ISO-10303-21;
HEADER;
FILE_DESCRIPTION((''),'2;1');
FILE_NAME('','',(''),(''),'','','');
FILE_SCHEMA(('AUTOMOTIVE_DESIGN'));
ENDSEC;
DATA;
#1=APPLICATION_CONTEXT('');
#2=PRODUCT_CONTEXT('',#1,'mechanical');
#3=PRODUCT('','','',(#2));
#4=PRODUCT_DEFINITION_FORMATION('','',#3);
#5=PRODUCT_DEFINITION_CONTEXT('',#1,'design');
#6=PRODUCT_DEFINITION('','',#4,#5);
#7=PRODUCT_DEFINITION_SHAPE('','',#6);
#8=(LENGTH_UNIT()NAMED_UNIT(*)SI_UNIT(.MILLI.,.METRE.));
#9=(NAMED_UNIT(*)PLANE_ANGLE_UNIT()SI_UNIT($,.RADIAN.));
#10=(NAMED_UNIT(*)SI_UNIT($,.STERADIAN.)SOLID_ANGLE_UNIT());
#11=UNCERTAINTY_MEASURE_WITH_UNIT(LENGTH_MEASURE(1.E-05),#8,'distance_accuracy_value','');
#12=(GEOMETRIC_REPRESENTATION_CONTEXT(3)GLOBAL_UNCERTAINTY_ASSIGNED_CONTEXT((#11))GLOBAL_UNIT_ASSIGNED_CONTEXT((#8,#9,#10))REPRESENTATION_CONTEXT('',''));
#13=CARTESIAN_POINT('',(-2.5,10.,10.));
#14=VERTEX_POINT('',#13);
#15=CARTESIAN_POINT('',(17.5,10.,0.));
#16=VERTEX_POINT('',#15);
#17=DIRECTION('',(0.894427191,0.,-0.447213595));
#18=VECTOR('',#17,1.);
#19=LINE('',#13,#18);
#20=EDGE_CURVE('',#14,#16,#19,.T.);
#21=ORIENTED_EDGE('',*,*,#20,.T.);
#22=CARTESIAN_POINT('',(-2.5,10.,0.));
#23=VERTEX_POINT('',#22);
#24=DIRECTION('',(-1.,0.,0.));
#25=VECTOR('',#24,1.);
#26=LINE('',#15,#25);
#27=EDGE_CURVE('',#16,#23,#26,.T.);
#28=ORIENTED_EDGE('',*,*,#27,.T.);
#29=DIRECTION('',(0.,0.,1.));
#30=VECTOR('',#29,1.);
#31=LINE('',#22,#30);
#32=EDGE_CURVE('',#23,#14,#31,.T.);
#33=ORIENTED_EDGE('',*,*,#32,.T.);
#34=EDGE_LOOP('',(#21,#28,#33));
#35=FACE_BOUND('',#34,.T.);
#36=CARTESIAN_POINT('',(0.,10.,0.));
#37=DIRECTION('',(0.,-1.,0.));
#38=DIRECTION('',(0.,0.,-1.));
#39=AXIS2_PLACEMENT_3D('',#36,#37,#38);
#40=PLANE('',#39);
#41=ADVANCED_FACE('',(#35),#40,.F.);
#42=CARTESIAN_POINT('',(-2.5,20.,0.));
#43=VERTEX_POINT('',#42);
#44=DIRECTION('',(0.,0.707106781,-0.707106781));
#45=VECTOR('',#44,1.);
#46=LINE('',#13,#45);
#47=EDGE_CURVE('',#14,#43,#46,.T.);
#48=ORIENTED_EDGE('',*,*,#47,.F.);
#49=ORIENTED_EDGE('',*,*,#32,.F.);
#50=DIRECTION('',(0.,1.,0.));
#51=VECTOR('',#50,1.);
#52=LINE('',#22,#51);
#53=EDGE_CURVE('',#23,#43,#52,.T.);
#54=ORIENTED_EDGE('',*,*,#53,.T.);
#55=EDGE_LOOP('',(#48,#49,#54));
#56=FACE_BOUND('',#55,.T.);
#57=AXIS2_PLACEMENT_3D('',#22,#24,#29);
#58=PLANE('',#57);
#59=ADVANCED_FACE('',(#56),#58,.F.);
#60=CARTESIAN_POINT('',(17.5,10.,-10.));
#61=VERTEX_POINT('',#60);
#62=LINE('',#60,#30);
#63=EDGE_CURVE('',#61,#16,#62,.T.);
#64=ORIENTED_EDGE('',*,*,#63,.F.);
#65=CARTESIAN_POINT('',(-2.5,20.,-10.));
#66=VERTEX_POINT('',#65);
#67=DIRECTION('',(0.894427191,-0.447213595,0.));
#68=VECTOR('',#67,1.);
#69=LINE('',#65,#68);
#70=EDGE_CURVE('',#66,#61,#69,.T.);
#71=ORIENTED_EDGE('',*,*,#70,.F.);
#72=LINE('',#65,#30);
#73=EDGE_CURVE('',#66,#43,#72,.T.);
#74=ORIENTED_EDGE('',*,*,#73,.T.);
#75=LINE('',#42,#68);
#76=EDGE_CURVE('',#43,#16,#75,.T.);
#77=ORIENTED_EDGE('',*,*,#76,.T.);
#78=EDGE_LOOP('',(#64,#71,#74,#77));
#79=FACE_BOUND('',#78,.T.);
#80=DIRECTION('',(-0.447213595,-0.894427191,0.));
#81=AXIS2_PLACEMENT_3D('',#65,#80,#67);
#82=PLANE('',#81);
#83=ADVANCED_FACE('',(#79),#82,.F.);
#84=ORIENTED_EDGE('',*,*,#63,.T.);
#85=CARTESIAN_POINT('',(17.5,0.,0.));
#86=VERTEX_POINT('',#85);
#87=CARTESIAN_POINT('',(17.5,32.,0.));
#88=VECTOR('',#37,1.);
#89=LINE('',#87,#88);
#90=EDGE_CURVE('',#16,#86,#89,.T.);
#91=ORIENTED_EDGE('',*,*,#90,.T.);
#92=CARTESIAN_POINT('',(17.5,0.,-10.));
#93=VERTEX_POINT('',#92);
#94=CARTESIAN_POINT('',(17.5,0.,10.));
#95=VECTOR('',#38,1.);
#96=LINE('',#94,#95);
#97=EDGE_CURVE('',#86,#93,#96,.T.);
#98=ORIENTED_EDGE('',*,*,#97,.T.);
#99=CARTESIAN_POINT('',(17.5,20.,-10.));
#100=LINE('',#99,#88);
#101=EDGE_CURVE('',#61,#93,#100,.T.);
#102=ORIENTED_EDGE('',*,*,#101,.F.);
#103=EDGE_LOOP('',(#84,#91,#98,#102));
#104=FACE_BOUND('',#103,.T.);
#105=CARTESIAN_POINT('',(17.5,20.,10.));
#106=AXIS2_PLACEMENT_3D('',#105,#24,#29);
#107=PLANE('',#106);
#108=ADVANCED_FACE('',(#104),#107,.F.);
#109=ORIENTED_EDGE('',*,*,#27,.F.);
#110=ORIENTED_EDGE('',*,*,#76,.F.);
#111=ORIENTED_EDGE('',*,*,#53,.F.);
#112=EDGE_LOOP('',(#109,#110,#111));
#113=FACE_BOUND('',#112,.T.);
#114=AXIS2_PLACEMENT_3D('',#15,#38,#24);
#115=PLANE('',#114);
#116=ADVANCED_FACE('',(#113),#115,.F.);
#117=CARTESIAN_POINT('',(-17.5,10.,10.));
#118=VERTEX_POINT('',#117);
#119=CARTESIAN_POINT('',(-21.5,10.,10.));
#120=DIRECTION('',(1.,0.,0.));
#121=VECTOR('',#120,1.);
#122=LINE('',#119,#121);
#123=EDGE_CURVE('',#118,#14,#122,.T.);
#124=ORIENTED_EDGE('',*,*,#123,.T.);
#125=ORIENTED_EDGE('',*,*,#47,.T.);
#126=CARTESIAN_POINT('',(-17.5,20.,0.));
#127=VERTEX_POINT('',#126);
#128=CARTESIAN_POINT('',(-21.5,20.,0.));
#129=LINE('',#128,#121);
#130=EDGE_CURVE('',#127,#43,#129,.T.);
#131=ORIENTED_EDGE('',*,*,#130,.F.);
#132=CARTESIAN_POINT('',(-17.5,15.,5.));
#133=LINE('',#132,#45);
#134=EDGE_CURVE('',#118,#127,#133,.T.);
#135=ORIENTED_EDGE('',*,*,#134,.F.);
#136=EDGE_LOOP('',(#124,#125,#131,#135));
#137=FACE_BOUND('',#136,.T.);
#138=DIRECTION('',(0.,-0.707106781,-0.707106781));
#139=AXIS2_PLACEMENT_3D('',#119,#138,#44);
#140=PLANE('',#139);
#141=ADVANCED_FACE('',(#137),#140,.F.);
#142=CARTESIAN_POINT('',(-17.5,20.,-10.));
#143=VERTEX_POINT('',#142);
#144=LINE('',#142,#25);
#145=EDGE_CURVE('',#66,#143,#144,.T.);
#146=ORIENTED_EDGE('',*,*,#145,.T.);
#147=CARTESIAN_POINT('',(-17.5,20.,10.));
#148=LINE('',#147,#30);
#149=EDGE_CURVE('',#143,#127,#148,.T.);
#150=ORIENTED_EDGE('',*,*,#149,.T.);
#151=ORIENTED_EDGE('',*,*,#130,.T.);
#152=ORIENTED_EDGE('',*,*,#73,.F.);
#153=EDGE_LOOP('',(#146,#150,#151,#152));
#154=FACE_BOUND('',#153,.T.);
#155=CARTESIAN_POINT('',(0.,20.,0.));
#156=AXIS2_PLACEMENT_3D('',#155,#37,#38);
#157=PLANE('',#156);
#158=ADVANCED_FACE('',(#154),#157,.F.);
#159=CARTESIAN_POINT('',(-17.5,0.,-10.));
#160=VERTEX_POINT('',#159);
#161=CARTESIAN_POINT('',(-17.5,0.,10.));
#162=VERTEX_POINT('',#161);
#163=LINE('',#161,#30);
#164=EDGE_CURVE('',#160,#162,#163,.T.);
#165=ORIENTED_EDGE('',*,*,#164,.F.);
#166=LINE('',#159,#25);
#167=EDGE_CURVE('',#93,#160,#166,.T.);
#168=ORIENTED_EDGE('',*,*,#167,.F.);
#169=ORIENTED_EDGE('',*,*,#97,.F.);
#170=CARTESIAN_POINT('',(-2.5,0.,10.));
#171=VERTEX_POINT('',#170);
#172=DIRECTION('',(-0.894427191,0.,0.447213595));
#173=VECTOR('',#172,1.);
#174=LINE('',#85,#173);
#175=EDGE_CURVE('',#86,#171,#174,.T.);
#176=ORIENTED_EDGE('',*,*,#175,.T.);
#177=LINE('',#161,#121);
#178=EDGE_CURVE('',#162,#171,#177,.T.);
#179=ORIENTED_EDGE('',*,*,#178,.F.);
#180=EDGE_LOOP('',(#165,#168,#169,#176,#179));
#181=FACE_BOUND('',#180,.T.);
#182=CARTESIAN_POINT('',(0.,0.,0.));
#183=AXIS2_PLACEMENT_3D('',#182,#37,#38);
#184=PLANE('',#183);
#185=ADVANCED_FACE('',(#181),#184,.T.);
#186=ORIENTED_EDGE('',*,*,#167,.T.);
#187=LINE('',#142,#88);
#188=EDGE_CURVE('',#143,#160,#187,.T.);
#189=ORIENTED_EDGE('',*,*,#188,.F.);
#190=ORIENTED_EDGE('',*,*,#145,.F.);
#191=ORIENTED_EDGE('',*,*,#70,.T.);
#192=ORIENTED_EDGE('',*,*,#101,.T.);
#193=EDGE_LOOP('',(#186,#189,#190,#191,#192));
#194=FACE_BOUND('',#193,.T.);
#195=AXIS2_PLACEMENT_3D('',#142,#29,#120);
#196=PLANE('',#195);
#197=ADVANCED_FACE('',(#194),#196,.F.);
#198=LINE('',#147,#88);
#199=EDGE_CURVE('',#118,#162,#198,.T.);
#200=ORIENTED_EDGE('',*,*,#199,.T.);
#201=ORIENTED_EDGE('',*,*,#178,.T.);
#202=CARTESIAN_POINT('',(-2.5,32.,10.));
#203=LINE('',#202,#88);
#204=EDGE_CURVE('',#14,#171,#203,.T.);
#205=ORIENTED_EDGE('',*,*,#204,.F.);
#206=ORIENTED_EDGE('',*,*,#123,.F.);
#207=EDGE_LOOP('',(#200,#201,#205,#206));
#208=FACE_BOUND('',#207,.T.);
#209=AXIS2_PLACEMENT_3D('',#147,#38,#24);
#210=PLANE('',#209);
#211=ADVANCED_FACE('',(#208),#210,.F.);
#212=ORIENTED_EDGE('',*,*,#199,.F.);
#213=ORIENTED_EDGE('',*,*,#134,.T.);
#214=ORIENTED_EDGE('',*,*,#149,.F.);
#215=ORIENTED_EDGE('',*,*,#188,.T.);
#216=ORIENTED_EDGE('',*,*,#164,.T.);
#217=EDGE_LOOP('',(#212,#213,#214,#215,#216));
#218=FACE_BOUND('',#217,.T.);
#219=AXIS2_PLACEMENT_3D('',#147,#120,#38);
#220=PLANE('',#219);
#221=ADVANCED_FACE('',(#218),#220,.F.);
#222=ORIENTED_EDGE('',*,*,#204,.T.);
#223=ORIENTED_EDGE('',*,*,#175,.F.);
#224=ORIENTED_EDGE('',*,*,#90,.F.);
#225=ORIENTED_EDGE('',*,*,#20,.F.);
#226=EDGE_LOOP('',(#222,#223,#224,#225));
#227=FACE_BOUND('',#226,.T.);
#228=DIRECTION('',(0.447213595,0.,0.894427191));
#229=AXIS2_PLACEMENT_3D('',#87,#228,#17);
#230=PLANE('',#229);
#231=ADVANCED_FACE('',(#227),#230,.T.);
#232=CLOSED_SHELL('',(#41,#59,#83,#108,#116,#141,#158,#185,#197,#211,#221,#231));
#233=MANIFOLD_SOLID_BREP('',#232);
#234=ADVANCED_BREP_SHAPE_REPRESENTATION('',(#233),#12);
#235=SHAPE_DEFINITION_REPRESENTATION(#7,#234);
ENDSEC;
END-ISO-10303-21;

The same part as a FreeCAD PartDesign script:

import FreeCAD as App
import Part
import Sketcher
Q = App.Units.Quantity


def add_polygon(sketch, points):
    """Adds a closed chain of lines whose ends are joined by coincident constraints."""
    first, n = sketch.GeometryCount, len(points)
    for a, b in zip(points, points[1:] + points[:1]):
        sketch.addGeometry(Part.LineSegment(App.Vector(*a, 0), App.Vector(*b, 0)), False)
    for i in range(n):
        sketch.addConstraint(Sketcher.Constraint("Coincident", first + i, 2, first + (i + 1) % n, 1))

doc = App.newDocument("Part")
body = doc.addObject("PartDesign::Body", "Body")

sketch1 = body.newObject("Sketcher::SketchObject", "Sketch")
sketch1.AttachmentSupport = (doc.getObject("XZ_Plane"), [""])
sketch1.MapMode = "FlatFace"
add_polygon(sketch1, [(-18, -10), (-18, 10), (18, 10), (18, -10)])
sketch1.addConstraint(Sketcher.Constraint("Vertical", 0))
sketch1.addConstraint(Sketcher.Constraint("Horizontal", 1))
sketch1.addConstraint(Sketcher.Constraint("Vertical", 2))
sketch1.addConstraint(Sketcher.Constraint("Horizontal", 3))
sketch1.addConstraint(Sketcher.Constraint("Symmetric", 0, 2, 2, 2, -1, 1))
sketch1.addConstraint(Sketcher.Constraint("DistanceX", 1, 1, 1, 2, Q("35 mm")))
sketch1.addConstraint(Sketcher.Constraint("DistanceY", 0, 1, 0, 2, Q("20 mm")))
pad1 = body.newObject("PartDesign::Pad", "Pad")
pad1.Profile = sketch1
pad1.Length = 20
pad1.Reversed = True

sketch2 = body.newObject("Sketcher::SketchObject", "Sketch001")
sketch2.AttachmentSupport = (doc.getObject("XY_Plane"), [""])
sketch2.MapMode = "FlatFace"
sketch2.AttachmentOffset = App.Placement(App.Vector(0, 0, 10), App.Rotation())
add_polygon(sketch2, [(18, 20), (-2, 20), (18, 10)])
sketch2.addConstraint(Sketcher.Constraint("Horizontal", 0))
sketch2.addConstraint(Sketcher.Constraint("Vertical", 2))
sketch2.addConstraint(Sketcher.Constraint("DistanceX", 0, 2, 0, 1, Q("20 mm")))
sketch2.addConstraint(Sketcher.Constraint("DistanceY", 2, 1, 2, 2, Q("10 mm")))
sketch2.addConstraint(Sketcher.Constraint("DistanceY", -1, 1, 0, 2, Q("20 mm")))
sketch2.addConstraint(Sketcher.Constraint("DistanceX", 0, 2, -1, 1, Q("2.5 mm")))
pocket1 = body.newObject("PartDesign::Pocket", "Pocket")
pocket1.Profile = sketch2
pocket1.Length = 20

sketch3 = body.newObject("Sketcher::SketchObject", "Sketch002")
sketch3.AttachmentSupport = (doc.getObject("XZ_Plane"), [""])
sketch3.MapMode = "FlatFace"
add_polygon(sketch3, [(-2, 10), (18, 10), (18, 0)])
sketch3.addConstraint(Sketcher.Constraint("Horizontal", 0))
sketch3.addConstraint(Sketcher.Constraint("Vertical", 1))
sketch3.addConstraint(Sketcher.Constraint("PointOnObject", 1, 2, -1))
sketch3.addConstraint(Sketcher.Constraint("DistanceX", 0, 1, 0, 2, Q("20 mm")))
sketch3.addConstraint(Sketcher.Constraint("DistanceY", 1, 2, 1, 1, Q("10 mm")))
sketch3.addConstraint(Sketcher.Constraint("DistanceX", -1, 1, 0, 2, Q("17.5 mm")))
pocket2 = body.newObject("PartDesign::Pocket", "Pocket001")
pocket2.Profile = sketch3
pocket2.Length = 32

sketch4 = body.newObject("Sketcher::SketchObject", "Sketch003")
sketch4.AttachmentSupport = (doc.getObject("XZ_Plane"), [""])
sketch4.MapMode = "FlatFace"
sketch4.AttachmentOffset = App.Placement(App.Vector(0, 0, -20), App.Rotation())
add_polygon(sketch4, [(18, 0), (-2, 0), (-2, 10)])
sketch4.addConstraint(Sketcher.Constraint("Horizontal", 0))
sketch4.addConstraint(Sketcher.Constraint("Vertical", 1))
sketch4.addConstraint(Sketcher.Constraint("PointOnObject", 0, 2, -1))
sketch4.addConstraint(Sketcher.Constraint("DistanceX", 0, 2, 0, 1, Q("20 mm")))
sketch4.addConstraint(Sketcher.Constraint("DistanceY", 1, 1, 1, 2, Q("10 mm")))
sketch4.addConstraint(Sketcher.Constraint("DistanceX", 0, 2, -1, 1, Q("2.5 mm")))
pocket3 = body.newObject("PartDesign::Pocket", "Pocket002")
pocket3.Profile = sketch4
pocket3.Length = 10
pocket3.Reversed = True

sketch5 = body.newObject("Sketcher::SketchObject", "Sketch004")
sketch5.AttachmentSupport = (doc.getObject("YZ_Plane"), [""])
sketch5.MapMode = "FlatFace"
sketch5.AttachmentOffset = App.Placement(App.Vector(0, 0, -2.5), App.Rotation())
add_polygon(sketch5, [(20, 0), (20, 10), (10, 10)])
sketch5.addConstraint(Sketcher.Constraint("Vertical", 0))
sketch5.addConstraint(Sketcher.Constraint("Horizontal", 1))
sketch5.addConstraint(Sketcher.Constraint("PointOnObject", 2, 2, -1))
sketch5.addConstraint(Sketcher.Constraint("Equal", 1, 0))
sketch5.addConstraint(Sketcher.Constraint("DistanceX", 1, 2, 1, 1, Q("10 mm")))
sketch5.addConstraint(Sketcher.Constraint("DistanceX", -1, 1, 0, 2, Q("20 mm")))
pocket4 = body.newObject("PartDesign::Pocket", "Pocket003")
pocket4.Profile = sketch5
pocket4.Length = 19

doc.recompute()
